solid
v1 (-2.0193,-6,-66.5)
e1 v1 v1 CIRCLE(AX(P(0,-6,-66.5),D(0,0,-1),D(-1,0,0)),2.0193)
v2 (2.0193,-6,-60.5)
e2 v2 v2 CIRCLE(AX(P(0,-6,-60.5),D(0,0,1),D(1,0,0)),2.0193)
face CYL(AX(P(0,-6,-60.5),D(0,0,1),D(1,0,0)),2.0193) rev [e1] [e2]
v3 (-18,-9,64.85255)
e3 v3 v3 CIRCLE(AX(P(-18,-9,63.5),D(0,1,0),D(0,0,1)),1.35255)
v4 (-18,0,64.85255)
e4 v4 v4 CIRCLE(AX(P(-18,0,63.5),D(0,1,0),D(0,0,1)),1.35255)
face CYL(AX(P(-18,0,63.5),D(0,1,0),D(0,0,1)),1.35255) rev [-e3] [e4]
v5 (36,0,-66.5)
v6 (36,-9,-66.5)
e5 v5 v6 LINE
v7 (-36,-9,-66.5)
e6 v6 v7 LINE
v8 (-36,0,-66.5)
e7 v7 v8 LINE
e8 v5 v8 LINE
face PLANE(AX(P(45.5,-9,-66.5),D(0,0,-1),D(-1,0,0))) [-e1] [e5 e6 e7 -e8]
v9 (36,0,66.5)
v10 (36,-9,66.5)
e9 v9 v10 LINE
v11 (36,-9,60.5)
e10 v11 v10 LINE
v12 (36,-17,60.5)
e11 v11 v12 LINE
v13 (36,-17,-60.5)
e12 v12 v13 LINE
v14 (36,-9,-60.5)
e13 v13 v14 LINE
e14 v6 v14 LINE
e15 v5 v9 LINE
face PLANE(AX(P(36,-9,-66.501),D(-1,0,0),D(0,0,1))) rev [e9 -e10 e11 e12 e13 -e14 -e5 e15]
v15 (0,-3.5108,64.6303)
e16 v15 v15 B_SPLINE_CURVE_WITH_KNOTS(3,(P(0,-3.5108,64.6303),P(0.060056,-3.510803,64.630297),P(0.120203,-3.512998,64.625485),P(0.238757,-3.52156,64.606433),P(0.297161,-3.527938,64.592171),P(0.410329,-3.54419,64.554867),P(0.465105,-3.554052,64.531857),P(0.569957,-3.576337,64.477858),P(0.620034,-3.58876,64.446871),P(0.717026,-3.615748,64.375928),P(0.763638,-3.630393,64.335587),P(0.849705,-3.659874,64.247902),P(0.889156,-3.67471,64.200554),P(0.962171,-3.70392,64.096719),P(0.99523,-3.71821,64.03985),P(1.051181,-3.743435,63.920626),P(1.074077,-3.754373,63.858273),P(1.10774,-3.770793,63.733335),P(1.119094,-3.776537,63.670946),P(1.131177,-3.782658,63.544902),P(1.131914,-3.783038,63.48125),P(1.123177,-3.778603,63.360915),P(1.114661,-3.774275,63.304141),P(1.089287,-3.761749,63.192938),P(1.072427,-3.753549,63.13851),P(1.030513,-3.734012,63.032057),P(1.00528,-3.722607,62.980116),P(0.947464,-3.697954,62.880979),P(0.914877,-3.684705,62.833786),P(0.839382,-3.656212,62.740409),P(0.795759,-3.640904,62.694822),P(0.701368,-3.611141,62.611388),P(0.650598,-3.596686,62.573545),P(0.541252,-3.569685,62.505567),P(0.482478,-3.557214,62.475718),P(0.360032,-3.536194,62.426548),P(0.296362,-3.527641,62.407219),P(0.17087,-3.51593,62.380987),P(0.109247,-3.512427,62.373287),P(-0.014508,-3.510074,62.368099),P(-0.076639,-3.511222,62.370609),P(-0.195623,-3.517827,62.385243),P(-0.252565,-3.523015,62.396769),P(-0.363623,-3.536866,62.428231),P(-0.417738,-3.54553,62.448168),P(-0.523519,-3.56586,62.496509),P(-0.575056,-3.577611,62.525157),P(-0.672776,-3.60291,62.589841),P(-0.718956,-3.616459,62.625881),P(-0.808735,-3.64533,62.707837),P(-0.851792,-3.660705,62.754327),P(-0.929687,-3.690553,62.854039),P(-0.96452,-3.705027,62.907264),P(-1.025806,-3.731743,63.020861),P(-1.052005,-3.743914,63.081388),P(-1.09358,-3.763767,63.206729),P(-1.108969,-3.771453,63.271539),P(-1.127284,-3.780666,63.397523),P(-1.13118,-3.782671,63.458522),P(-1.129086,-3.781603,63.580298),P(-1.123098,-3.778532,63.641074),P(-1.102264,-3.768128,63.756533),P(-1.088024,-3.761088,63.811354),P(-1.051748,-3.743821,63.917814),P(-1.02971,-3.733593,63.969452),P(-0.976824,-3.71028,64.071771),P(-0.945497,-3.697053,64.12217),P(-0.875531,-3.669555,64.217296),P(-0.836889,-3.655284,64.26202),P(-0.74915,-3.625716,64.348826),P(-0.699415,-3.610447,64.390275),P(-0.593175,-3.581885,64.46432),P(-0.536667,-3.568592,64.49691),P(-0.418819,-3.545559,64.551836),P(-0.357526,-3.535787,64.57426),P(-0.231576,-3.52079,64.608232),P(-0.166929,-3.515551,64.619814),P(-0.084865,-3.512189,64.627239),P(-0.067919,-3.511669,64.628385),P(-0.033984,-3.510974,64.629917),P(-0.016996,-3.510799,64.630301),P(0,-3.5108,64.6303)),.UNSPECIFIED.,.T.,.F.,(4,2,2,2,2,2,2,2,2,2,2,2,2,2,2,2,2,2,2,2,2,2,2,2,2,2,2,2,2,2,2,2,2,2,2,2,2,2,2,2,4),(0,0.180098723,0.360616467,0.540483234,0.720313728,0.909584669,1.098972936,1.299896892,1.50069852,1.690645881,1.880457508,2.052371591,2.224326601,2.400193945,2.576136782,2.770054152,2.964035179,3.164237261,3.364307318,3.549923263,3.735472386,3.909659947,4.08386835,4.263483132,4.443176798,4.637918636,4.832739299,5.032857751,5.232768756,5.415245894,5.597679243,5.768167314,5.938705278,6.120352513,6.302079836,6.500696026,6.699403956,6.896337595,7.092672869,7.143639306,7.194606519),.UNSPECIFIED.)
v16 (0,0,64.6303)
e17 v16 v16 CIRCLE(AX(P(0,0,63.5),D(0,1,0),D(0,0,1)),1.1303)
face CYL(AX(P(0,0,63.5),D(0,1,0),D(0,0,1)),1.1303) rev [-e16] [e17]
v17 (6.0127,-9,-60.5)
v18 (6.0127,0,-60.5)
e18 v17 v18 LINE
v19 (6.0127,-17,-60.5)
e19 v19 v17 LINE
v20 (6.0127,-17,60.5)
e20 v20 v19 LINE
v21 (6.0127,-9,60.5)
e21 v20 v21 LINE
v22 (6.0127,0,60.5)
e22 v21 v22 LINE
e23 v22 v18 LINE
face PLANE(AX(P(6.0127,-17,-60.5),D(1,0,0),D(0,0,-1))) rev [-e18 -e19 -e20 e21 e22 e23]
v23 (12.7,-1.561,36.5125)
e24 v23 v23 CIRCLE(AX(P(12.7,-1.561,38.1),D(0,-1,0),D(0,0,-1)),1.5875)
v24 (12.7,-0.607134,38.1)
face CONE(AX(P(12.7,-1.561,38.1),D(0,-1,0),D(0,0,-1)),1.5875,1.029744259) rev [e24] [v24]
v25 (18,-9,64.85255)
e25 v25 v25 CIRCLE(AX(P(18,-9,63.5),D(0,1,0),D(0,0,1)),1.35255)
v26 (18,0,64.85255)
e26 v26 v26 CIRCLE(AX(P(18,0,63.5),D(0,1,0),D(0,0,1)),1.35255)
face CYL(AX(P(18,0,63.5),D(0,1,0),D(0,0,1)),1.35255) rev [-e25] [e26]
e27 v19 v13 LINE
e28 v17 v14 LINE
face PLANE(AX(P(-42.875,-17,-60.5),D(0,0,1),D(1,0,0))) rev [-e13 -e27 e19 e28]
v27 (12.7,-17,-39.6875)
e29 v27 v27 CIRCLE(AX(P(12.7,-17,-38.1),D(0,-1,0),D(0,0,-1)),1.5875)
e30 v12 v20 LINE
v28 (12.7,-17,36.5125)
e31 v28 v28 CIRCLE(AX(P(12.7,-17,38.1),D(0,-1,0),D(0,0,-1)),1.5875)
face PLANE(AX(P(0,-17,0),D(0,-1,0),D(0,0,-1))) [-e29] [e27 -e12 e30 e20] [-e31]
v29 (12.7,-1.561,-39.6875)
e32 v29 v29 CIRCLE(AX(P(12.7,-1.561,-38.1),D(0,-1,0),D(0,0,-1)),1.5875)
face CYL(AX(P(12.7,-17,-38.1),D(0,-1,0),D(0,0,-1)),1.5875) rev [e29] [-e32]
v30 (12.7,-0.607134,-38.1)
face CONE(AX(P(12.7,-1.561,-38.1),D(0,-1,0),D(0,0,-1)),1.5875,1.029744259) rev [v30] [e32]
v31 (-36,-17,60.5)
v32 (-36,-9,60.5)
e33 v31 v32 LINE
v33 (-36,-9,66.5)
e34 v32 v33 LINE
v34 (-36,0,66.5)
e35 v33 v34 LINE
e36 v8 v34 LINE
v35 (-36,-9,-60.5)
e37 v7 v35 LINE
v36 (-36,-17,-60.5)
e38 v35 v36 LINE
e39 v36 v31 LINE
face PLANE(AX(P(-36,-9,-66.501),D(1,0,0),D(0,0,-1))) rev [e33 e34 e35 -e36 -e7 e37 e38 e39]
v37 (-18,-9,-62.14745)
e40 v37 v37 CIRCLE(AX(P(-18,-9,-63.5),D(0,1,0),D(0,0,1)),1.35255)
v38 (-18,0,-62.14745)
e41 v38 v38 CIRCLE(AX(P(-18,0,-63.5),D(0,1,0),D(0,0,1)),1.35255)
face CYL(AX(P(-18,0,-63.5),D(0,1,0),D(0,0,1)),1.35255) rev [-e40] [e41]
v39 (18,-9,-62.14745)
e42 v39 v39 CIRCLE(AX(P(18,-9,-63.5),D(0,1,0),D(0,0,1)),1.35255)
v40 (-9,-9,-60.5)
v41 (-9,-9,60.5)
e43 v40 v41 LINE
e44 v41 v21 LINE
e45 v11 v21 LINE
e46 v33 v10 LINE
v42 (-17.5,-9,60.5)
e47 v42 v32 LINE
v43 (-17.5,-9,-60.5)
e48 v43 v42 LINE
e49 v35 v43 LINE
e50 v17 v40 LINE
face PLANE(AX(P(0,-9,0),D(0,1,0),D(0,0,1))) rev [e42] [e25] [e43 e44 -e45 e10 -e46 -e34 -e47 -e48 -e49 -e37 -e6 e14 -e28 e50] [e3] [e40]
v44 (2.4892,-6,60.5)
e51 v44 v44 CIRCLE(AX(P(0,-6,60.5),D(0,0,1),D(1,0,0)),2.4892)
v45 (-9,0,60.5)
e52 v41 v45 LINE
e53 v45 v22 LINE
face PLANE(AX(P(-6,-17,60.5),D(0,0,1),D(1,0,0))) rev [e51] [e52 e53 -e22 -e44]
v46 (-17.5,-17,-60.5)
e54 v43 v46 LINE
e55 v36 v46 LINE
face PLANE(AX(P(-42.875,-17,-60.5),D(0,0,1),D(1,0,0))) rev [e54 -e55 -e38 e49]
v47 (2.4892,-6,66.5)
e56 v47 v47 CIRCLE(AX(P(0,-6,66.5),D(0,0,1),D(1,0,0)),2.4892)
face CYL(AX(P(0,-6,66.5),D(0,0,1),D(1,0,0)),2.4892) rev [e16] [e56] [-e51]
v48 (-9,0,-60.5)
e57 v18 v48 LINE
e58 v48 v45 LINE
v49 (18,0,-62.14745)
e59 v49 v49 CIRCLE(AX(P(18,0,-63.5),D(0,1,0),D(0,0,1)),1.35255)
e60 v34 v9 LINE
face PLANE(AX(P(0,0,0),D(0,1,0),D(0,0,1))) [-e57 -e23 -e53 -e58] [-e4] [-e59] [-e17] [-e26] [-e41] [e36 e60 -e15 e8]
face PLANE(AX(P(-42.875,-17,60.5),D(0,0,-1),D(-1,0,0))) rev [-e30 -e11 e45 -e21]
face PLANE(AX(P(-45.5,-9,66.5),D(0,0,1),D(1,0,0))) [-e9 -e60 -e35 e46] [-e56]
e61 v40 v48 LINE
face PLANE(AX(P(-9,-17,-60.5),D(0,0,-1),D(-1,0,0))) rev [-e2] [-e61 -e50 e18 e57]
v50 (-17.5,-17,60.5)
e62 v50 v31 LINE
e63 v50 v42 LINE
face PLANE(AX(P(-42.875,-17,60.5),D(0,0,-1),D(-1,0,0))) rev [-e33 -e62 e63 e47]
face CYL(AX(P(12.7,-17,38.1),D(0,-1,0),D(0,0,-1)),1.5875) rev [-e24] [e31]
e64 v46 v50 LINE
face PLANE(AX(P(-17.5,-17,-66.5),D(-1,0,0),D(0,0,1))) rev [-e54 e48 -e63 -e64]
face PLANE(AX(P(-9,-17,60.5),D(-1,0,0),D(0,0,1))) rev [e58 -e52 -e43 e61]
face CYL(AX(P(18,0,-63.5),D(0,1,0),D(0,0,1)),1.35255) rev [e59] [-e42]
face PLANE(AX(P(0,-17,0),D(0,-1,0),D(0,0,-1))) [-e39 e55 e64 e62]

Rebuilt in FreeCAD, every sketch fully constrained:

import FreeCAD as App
import Part
import Sketcher

V = App.Vector
Q = App.Units.Quantity


def add_polygon(sketch, points):
    """Adds a closed chain of lines whose ends are joined by coincident constraints."""
    first, n = sketch.GeometryCount, len(points)
    for a, b in zip(points, points[1:] + points[:1]):
        sketch.addGeometry(Part.LineSegment(App.Vector(*a, 0), App.Vector(*b, 0)), False)
    for i in range(n):
        sketch.addConstraint(Sketcher.Constraint("Coincident", first + i, 2, first + (i + 1) % n, 1))

doc = App.newDocument("Part")
body = doc.addObject("PartDesign::Body", "Body")

sketch1 = body.newObject("Sketcher::SketchObject", "Sketch")
sketch1.AttachmentSupport = (doc.getObject("XZ_Plane"), [""])
sketch1.MapMode = "FlatFace"
add_polygon(sketch1, [(-46, -66), (-46, 66), (46, 66), (46, -66)])
sketch1.addConstraint([
    Sketcher.Constraint("Vertical", 0),
    Sketcher.Constraint("Horizontal", 1),
    Sketcher.Constraint("Vertical", 2),
    Sketcher.Constraint("Horizontal", 3),
    Sketcher.Constraint("Symmetric", 0, 2, 2, 2, -1, 1),
    Sketcher.Constraint("DistanceX", 1, 1, 1, 2, Q("91 mm")),
    Sketcher.Constraint("DistanceY", 0, 1, 0, 2, Q("133 mm")),
])
pad1 = body.newObject("PartDesign::Pad", "Pad")
pad1.Profile = sketch1
pad1.Length = 9

sketch2 = body.newObject("Sketcher::SketchObject", "Sketch001")
sketch2.AttachmentSupport = (doc.getObject("XZ_Plane"), [""])
sketch2.MapMode = "FlatFace"
sketch2.AttachmentOffset = App.Placement(V(0, 0, 9), App.Rotation())
add_polygon(sketch2, [(-43, 60), (-43, -60), (43, -60), (43, 60)])
sketch2.addConstraint([
    Sketcher.Constraint("Vertical", 0),
    Sketcher.Constraint("Horizontal", 1),
    Sketcher.Constraint("Vertical", 2),
    Sketcher.Constraint("Horizontal", 3),
    Sketcher.Constraint("Symmetric", 0, 2, 2, 2, -1, 1),
    Sketcher.Constraint("DistanceY", 0, 2, 0, 1, Q("121 mm")),
    Sketcher.Constraint("DistanceX", 1, 1, 1, 2, Q("85.75 mm")),
])
pad2 = body.newObject("PartDesign::Pad", "Pad001")
pad2.Profile = sketch2
pad2.Length = 8

sketch3 = body.newObject("Sketcher::SketchObject", "Sketch002")
sketch3.AttachmentSupport = (doc.getObject("XZ_Plane"), [""])
sketch3.MapMode = "FlatFace"
sketch3.AttachmentOffset = App.Placement(V(0, 0, 17), App.Rotation())
sketch3.addGeometry([
    Part.Circle(V(12.7, 38.1, 0), V(0, 0, 1), 1.6),
    Part.Circle(V(12.7, -38.1, 0), V(0, 0, 1), 1.6),
], False)
sketch3.addConstraint([
    Sketcher.Constraint("Equal", 0, 1),
    Sketcher.Constraint("Symmetric", 0, 3, 1, 3, -1),
    Sketcher.Constraint("Diameter", 0, Q("3.175 mm")),
    Sketcher.Constraint("DistanceX", -1, 1, 0, 3, Q("12.7 mm")),
    Sketcher.Constraint("DistanceY", -1, 1, 0, 3, Q("38.1 mm")),
])
doc.recompute()
hole = body.newObject("PartDesign::Hole", "Hole")
hole.Profile = sketch3
hole.ThreadType = "None"
hole.Diameter = 3.175
hole.DepthType = "Dimension"
hole.Depth = 15.439
hole.DrillPoint = "Angled"
hole.DrillPointAngle = 118

sketch4 = body.newObject("Sketcher::SketchObject", "Sketch003")
sketch4.AttachmentSupport = (doc.getObject("XY_Plane"), [""])
sketch4.MapMode = "FlatFace"
add_polygon(sketch4, [(-18, -9), (-18, -17), (18, -17), (18, -9)])
sketch4.addConstraint([
    Sketcher.Constraint("Vertical", 0),
    Sketcher.Constraint("Horizontal", 1),
    Sketcher.Constraint("Vertical", 2),
    Sketcher.Constraint("Horizontal", 3),
    Sketcher.Constraint("DistanceX", 1, 1, 1, 2, Q("35 mm")),
    Sketcher.Constraint("DistanceY", 0, 2, 0, 1, Q("8 mm")),
    Sketcher.Constraint("DistanceY", 0, 2, -1, 1, Q("17 mm")),
    Sketcher.Constraint("DistanceX", 0, 2, -1, 1, Q("17.5 mm")),
])
pocket1 = body.newObject("PartDesign::Pocket", "Pocket")
pocket1.Profile = sketch4
pocket1.Type = "ThroughAll"
pocket1.Midplane = True

sketch5 = body.newObject("Sketcher::SketchObject", "Sketch004")
sketch5.AttachmentSupport = (doc.getObject("XZ_Plane"), [""])
sketch5.MapMode = "FlatFace"
add_polygon(sketch5, [(6, -60), (-9, -60), (-9, 60), (6, 60)])
sketch5.addConstraint([
    Sketcher.Constraint("Horizontal", 0),
    Sketcher.Constraint("Vertical", 1),
    Sketcher.Constraint("Horizontal", 2),
    Sketcher.Constraint("Vertical", 3),
    Sketcher.Constraint("DistanceY", 1, 1, 1, 2, Q("121 mm")),
    Sketcher.Constraint("DistanceX", 0, 2, -1, 1, Q("9 mm")),
    Sketcher.Constraint("DistanceY", 0, 2, -1, 1, Q("60.5 mm")),
    Sketcher.Constraint("DistanceX", 0, 2, 0, 1, Q("15.0127 mm")),
])
pocket2 = body.newObject("PartDesign::Pocket", "Pocket001")
pocket2.Profile = sketch5
pocket2.Type = "ThroughAll"
pocket2.Reversed = True

sketch6 = body.newObject("Sketcher::SketchObject", "Sketch005")
sketch6.AttachmentSupport = (doc.getObject("XY_Plane"), [""])
sketch6.MapMode = "FlatFace"
sketch6.AttachmentOffset = App.Placement(V(0, 0, -60.5), App.Rotation())
sketch6.addGeometry(Part.Circle(V(0, -6, 0), V(0, 0, 1), 2), False)
sketch6.addConstraint([
    Sketcher.Constraint("PointOnObject", 0, 3, -2),
    Sketcher.Constraint("DistanceY", 0, 3, -1, 1, Q("6 mm")),
    Sketcher.Constraint("Diameter", 0, Q("4.0386 mm")),
])
doc.recompute()
hole2 = body.newObject("PartDesign::Hole", "Hole001")
hole2.Profile = sketch6
hole2.ThreadType = "None"
hole2.Diameter = 4.0386
hole2.DepthType = "Dimension"
hole2.Depth = 6
hole2.DrillPoint = "Flat"

sketch7 = body.newObject("Sketcher::SketchObject", "Sketch006")
sketch7.AttachmentSupport = (doc.getObject("XY_Plane"), [""])
sketch7.MapMode = "FlatFace"
sketch7.AttachmentOffset = App.Placement(V(0, 0, 66.5), App.Rotation())
sketch7.addGeometry(Part.Circle(V(0, -6, 0), V(0, 0, 1), 2.5), False)
sketch7.addConstraint([
    Sketcher.Constraint("PointOnObject", 0, 3, -2),
    Sketcher.Constraint("DistanceY", 0, 3, -1, 1, Q("6 mm")),
    Sketcher.Constraint("Diameter", 0, Q("4.9784 mm")),
])
doc.recompute()
hole3 = body.newObject("PartDesign::Hole", "Hole002")
hole3.Profile = sketch7
hole3.ThreadType = "None"
hole3.Diameter = 4.9784
hole3.DepthType = "Dimension"
hole3.Depth = 6
hole3.DrillPoint = "Flat"

sketch8 = body.newObject("Sketcher::SketchObject", "Sketch007")
sketch8.AttachmentSupport = (doc.getObject("XZ_Plane"), [""])
sketch8.MapMode = "FlatFace"
sketch8.addGeometry(Part.Circle(V(0, 63.5, 0), V(0, 0, 1), 1.1), False)
sketch8.addConstraint([
    Sketcher.Constraint("PointOnObject", 0, 3, -2),
    Sketcher.Constraint("Diameter", 0, Q("2.2606 mm")),
    Sketcher.Constraint("DistanceY", -1, 1, 0, 3, Q("63.5 mm")),
])
pocket3 = body.newObject("PartDesign::Pocket", "Pocket002")
pocket3.Profile = sketch8
pocket3.Type = "UpToFirst"
pocket3.Reversed = True

sketch9 = body.newObject("Sketcher::SketchObject", "Sketch008")
sketch9.AttachmentSupport = (doc.getObject("XZ_Plane"), [""])
sketch9.MapMode = "FlatFace"
sketch9.addGeometry([
    Part.Circle(V(-18, 63.5, 0), V(0, 0, 1), 1.4),
    Part.Circle(V(18, 63.5, 0), V(0, 0, 1), 1.4),
    Part.Circle(V(18, -63.5, 0), V(0, 0, 1), 1.4),
    Part.Circle(V(-18, -63.5, 0), V(0, 0, 1), 1.4),
], False)
sketch9.addConstraint([
    Sketcher.Constraint("Equal", 0, 1),
    Sketcher.Constraint("Equal", 1, 2),
    Sketcher.Constraint("Equal", 2, 3),
    Sketcher.Constraint("Symmetric", 0, 3, 2, 3, -1, 1),
    Sketcher.Constraint("Symmetric", 1, 3, 3, 3, -1, 1),
    Sketcher.Constraint("Symmetric", 0, 3, 1, 3, -2),
    Sketcher.Constraint("DistanceX", 0, 3, -1, 1, Q("18 mm")),
    Sketcher.Constraint("DistanceY", 2, 3, 1, 3, Q("127 mm")),
    Sketcher.Constraint("Diameter", 0, Q("2.7051 mm")),
])
doc.recompute()
hole4 = body.newObject("PartDesign::Hole", "Hole003")
hole4.Profile = sketch9
hole4.ThreadType = "None"
hole4.Diameter = 2.7051
hole4.DepthType = "ThroughAll"
hole4.Reversed = True

sketch10 = body.newObject("Sketcher::SketchObject", "Sketch009")
sketch10.AttachmentSupport = (doc.getObject("XY_Plane"), [""])
sketch10.MapMode = "FlatFace"
sketch10.AttachmentOffset = App.Placement(V(0, 0, 66.5), App.Rotation())
add_polygon(sketch10, [(36, 0), (36, -9), (46, -9), (46, 0)])
sketch10.addConstraint([
    Sketcher.Constraint("Vertical", 0),
    Sketcher.Constraint("Horizontal", 1),
    Sketcher.Constraint("Vertical", 2),
    Sketcher.Constraint("Horizontal", 3),
    Sketcher.Constraint("PointOnObject", 2, 2, -1),
    Sketcher.Constraint("DistanceY", 0, 2, 0, 1, Q("9 mm")),
    Sketcher.Constraint("DistanceX", 1, 1, 1, 2, Q("9.5 mm")),
    Sketcher.Constraint("DistanceX", -1, 1, 0, 2, Q("36 mm")),
])
pocket4 = body.newObject("PartDesign::Pocket", "Pocket003")
pocket4.Profile = sketch10
pocket4.Type = "UpToFirst"

sketch11 = body.newObject("Sketcher::SketchObject", "Sketch010")
sketch11.AttachmentSupport = (doc.getObject("XY_Plane"), [""])
sketch11.MapMode = "FlatFace"
sketch11.AttachmentOffset = App.Placement(V(0, 0, 66.5), App.Rotation())
add_polygon(sketch11, [(-46, 0), (-46, -9), (-36, -9), (-36, 0)])
sketch11.addConstraint([
    Sketcher.Constraint("Vertical", 0),
    Sketcher.Constraint("Horizontal", 1),
    Sketcher.Constraint("Vertical", 2),
    Sketcher.Constraint("Horizontal", 3),
    Sketcher.Constraint("PointOnObject", 2, 2, -1),
    Sketcher.Constraint("DistanceY", 0, 2, 0, 1, Q("9 mm")),
    Sketcher.Constraint("DistanceX", 1, 1, 1, 2, Q("9.5 mm")),
    Sketcher.Constraint("DistanceX", 1, 2, -1, 1, Q("36 mm")),
])
pocket5 = body.newObject("PartDesign::Pocket", "Pocket004")
pocket5.Profile = sketch11
pocket5.Type = "UpToFirst"

sketch12 = body.newObject("Sketcher::SketchObject", "Sketch011")
sketch12.AttachmentSupport = (doc.getObject("XZ_Plane"), [""])
sketch12.MapMode = "FlatFace"
add_polygon(sketch12, [(-60, -83), (-60, 83), (60, 83), (60, -83)])
add_polygon(sketch12, [(36, 66), (-36, 66), (-36, -66), (36, -66)])
sketch12.addConstraint([
    Sketcher.Constraint("Vertical", 0),
    Sketcher.Constraint("Horizontal", 1),
    Sketcher.Constraint("Vertical", 2),
    Sketcher.Constraint("Horizontal", 3),
    Sketcher.Constraint("Horizontal", 4),
    Sketcher.Constraint("Vertical", 5),
    Sketcher.Constraint("Horizontal", 6),
    Sketcher.Constraint("Vertical", 7),
    Sketcher.Constraint("Symmetric", 0, 2, 2, 2, -1, 1),
    Sketcher.Constraint("Symmetric", 4, 2, 6, 2, -1, 1),
    Sketcher.Constraint("DistanceX", 4, 2, 4, 1, Q("72 mm")),
    Sketcher.Constraint("DistanceY", 5, 2, 5, 1, Q("133 mm")),
    Sketcher.Constraint("DistanceX", 1, 1, 1, 2, Q("119.582 mm")),
    Sketcher.Constraint("DistanceY", 0, 1, 0, 2, Q("166.832 mm")),
])
pocket6 = body.newObject("PartDesign::Pocket", "Pocket005")
pocket6.Profile = sketch12
pocket6.Type = "ThroughAll"
pocket6.Midplane = True

sketch13 = body.newObject("Sketcher::SketchObject", "Sketch012")
sketch13.AttachmentSupport = (doc.getObject("XZ_Plane"), [""])
sketch13.MapMode = "FlatFace"
sketch13.AttachmentOffset = App.Placement(V(0, 0, 9), App.Rotation())
add_polygon(sketch13, [(6, 60.5), (6, -60.5), (17.5, -60.5), (17.5, 60.5)])
sketch13.addGeometry(Part.Circle(V(12.7, -38.1, 0), V(0, 0, 1), 1.6), False)
sketch13.addGeometry(Part.Circle(V(12.7, 38.1, 0), V(0, 0, 1), 1.6), False)
sketch13.addConstraint([
    Sketcher.Constraint("Vertical", 0),
    Sketcher.Constraint("Horizontal", 1),
    Sketcher.Constraint("Vertical", 2),
    Sketcher.Constraint("Horizontal", 3),
    Sketcher.Constraint("Equal", 4, 5),
    Sketcher.Constraint("Symmetric", 4, 3, 5, 3, -1),
    Sketcher.Constraint("DistanceY", 0, 2, 0, 1, Q("121 mm")),
    Sketcher.Constraint("Diameter", 4, Q("3.175 mm")),
    Sketcher.Constraint("DistanceX", -1, 1, 4, 3, Q("12.7 mm")),
    Sketcher.Constraint("DistanceY", 4, 3, -1, 1, Q("38.1 mm")),
    Sketcher.Constraint("DistanceY", 0, 2, -1, 1, Q("60.5 mm")),
    Sketcher.Constraint("DistanceX", -1, 1, 1, 2, Q("17.5 mm")),
    Sketcher.Constraint("DistanceX", 1, 1, 1, 2, Q("11.4873 mm")),
])
pad3 = body.newObject("PartDesign::Pad", "Pad002")
pad3.Profile = sketch13
pad3.Length = 8

doc.recompute()
